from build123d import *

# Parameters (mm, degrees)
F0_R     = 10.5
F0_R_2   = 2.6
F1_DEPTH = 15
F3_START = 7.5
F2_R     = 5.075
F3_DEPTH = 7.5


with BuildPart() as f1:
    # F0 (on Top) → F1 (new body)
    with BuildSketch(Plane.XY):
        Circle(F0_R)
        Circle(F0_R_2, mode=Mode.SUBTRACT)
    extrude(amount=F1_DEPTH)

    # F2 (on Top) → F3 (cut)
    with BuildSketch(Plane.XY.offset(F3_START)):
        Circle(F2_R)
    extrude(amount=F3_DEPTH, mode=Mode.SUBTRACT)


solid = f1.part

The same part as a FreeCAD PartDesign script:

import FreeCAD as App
import Part
import Sketcher
from FreeCAD import Vector

doc = App.newDocument("Part")
body = doc.addObject("PartDesign::Body", "Body")

sketch1 = body.newObject("Sketcher::SketchObject", "Sketch")
sketch1.AttachmentSupport = (doc.getObject("XY_Plane"), [""])
sketch1.MapMode = "FlatFace"
sketch1.addGeometry([
    Part.Circle(Vector(0, 0, 0), Vector(0, 0, 1), 10.5),
    Part.Circle(Vector(0, 0, 0), Vector(0, 0, 1), 2.6),
], False)
sketch1.addConstraint([
    Sketcher.Constraint("Coincident", 0, 3, -1, 1),
    Sketcher.Constraint("Coincident", 1, 3, -1, 1),
    Sketcher.Constraint("Diameter", 0, 21.0),
    Sketcher.Constraint("Diameter", 1, 5.2),
])
pad1 = body.newObject("PartDesign::Pad", "Pad")
pad1.Profile = sketch1
pad1.Length = 15

sketch2 = body.newObject("Sketcher::SketchObject", "Sketch001")
sketch2.AttachmentSupport = (doc.getObject("XY_Plane"), [""])
sketch2.MapMode = "FlatFace"
sketch2.AttachmentOffset = App.Placement(Vector(0, 0, 7.5), App.Rotation())
sketch2.addGeometry(Part.Circle(Vector(0, 0, 0), Vector(0, 0, 1), 5), False)
sketch2.addConstraint([
    Sketcher.Constraint("Coincident", 0, 3, -1, 1),
    Sketcher.Constraint("Diameter", 0, 10.15),
])
pocket1 = body.newObject("PartDesign::Pocket", "Pocket")
pocket1.Profile = sketch2
pocket1.Length = 7.5
pocket1.Reversed = True

doc.recompute()
